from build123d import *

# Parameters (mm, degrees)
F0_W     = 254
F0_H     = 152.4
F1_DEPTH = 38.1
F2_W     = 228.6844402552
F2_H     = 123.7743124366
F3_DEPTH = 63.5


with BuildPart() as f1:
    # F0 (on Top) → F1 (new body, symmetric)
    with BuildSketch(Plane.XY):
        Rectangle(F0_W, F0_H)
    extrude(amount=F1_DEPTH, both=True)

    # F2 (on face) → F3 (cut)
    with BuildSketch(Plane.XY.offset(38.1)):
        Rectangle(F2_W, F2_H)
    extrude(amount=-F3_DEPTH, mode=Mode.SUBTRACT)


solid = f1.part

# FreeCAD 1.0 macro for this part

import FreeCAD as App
import Part
import Sketcher

V = App.Vector
Q = App.Units.Quantity

doc = App.newDocument("Part")
body = doc.addObject("PartDesign::Body", "Body")

sketch1 = doc.addObject("Sketcher::SketchObject", "Sketch")
body.addObject(sketch1)
sketch1.AttachmentSupport = (doc.XY_Plane, [""])
sketch1.MapMode = "FlatFace"
sketch1.addGeometry(Part.LineSegment(V(-127, 76, 0), V(-127, -76, 0)), False)
sketch1.addGeometry(Part.LineSegment(V(-127, -76, 0), V(127, -76, 0)), False)
sketch1.addGeometry(Part.LineSegment(V(127, -76, 0), V(127, 76, 0)), False)
sketch1.addGeometry(Part.LineSegment(V(127, 76, 0), V(-127, 76, 0)), False)
sketch1.addConstraint(Sketcher.Constraint("Coincident", 0, 2, 1, 1))
sketch1.addConstraint(Sketcher.Constraint("Coincident", 1, 2, 2, 1))
sketch1.addConstraint(Sketcher.Constraint("Coincident", 2, 2, 3, 1))
sketch1.addConstraint(Sketcher.Constraint("Coincident", 3, 2, 0, 1))
sketch1.addConstraint(Sketcher.Constraint("Vertical", 0))
sketch1.addConstraint(Sketcher.Constraint("Horizontal", 1))
sketch1.addConstraint(Sketcher.Constraint("Vertical", 2))
sketch1.addConstraint(Sketcher.Constraint("Horizontal", 3))
sketch1.addConstraint(Sketcher.Constraint("Symmetric", 0, 2, 2, 2, -1, 1))
sketch1.addConstraint(Sketcher.Constraint("DistanceX", 1, 1, 1, 2, Q("10 in")))
sketch1.addConstraint(Sketcher.Constraint("DistanceY", 0, 2, 0, 1, Q("6 in")))
pad1 = doc.addObject("PartDesign::Pad", "Pad")
body.addObject(pad1)
pad1.Profile = sketch1
pad1.Length = Q("3 in")
pad1.Midplane = True

sketch2 = doc.addObject("Sketcher::SketchObject", "Sketch001")
body.addObject(sketch2)
sketch2.AttachmentSupport = (doc.XY_Plane, [""])
sketch2.MapMode = "FlatFace"
sketch2.AttachmentOffset = App.Placement(V(0, 0, 1.5 * 25.4), App.Rotation())
sketch2.addGeometry(Part.LineSegment(V(-114, 62, 0), V(-114, -62, 0)), False)
sketch2.addGeometry(Part.LineSegment(V(-114, -62, 0), V(114, -62, 0)), False)
sketch2.addGeometry(Part.LineSegment(V(114, -62, 0), V(114, 62, 0)), False)
sketch2.addGeometry(Part.LineSegment(V(114, 62, 0), V(-114, 62, 0)), False)
sketch2.addConstraint(Sketcher.Constraint("Coincident", 0, 2, 1, 1))
sketch2.addConstraint(Sketcher.Constraint("Coincident", 1, 2, 2, 1))
sketch2.addConstraint(Sketcher.Constraint("Coincident", 2, 2, 3, 1))
sketch2.addConstraint(Sketcher.Constraint("Coincident", 3, 2, 0, 1))
sketch2.addConstraint(Sketcher.Constraint("Vertical", 0))
sketch2.addConstraint(Sketcher.Constraint("Horizontal", 1))
sketch2.addConstraint(Sketcher.Constraint("Vertical", 2))
sketch2.addConstraint(Sketcher.Constraint("Horizontal", 3))
sketch2.addConstraint(Sketcher.Constraint("Symmetric", 0, 2, 2, 2, -1, 1))
sketch2.addConstraint(Sketcher.Constraint("DistanceX", 1, 1, 1, 2, 228.68444))
sketch2.addConstraint(Sketcher.Constraint("DistanceY", 0, 2, 0, 1, 123.774312))
pocket1 = doc.addObject("PartDesign::Pocket", "Pocket")
body.addObject(pocket1)
pocket1.Profile = sketch2
pocket1.Length = Q("2.5 in")

doc.recompute()
